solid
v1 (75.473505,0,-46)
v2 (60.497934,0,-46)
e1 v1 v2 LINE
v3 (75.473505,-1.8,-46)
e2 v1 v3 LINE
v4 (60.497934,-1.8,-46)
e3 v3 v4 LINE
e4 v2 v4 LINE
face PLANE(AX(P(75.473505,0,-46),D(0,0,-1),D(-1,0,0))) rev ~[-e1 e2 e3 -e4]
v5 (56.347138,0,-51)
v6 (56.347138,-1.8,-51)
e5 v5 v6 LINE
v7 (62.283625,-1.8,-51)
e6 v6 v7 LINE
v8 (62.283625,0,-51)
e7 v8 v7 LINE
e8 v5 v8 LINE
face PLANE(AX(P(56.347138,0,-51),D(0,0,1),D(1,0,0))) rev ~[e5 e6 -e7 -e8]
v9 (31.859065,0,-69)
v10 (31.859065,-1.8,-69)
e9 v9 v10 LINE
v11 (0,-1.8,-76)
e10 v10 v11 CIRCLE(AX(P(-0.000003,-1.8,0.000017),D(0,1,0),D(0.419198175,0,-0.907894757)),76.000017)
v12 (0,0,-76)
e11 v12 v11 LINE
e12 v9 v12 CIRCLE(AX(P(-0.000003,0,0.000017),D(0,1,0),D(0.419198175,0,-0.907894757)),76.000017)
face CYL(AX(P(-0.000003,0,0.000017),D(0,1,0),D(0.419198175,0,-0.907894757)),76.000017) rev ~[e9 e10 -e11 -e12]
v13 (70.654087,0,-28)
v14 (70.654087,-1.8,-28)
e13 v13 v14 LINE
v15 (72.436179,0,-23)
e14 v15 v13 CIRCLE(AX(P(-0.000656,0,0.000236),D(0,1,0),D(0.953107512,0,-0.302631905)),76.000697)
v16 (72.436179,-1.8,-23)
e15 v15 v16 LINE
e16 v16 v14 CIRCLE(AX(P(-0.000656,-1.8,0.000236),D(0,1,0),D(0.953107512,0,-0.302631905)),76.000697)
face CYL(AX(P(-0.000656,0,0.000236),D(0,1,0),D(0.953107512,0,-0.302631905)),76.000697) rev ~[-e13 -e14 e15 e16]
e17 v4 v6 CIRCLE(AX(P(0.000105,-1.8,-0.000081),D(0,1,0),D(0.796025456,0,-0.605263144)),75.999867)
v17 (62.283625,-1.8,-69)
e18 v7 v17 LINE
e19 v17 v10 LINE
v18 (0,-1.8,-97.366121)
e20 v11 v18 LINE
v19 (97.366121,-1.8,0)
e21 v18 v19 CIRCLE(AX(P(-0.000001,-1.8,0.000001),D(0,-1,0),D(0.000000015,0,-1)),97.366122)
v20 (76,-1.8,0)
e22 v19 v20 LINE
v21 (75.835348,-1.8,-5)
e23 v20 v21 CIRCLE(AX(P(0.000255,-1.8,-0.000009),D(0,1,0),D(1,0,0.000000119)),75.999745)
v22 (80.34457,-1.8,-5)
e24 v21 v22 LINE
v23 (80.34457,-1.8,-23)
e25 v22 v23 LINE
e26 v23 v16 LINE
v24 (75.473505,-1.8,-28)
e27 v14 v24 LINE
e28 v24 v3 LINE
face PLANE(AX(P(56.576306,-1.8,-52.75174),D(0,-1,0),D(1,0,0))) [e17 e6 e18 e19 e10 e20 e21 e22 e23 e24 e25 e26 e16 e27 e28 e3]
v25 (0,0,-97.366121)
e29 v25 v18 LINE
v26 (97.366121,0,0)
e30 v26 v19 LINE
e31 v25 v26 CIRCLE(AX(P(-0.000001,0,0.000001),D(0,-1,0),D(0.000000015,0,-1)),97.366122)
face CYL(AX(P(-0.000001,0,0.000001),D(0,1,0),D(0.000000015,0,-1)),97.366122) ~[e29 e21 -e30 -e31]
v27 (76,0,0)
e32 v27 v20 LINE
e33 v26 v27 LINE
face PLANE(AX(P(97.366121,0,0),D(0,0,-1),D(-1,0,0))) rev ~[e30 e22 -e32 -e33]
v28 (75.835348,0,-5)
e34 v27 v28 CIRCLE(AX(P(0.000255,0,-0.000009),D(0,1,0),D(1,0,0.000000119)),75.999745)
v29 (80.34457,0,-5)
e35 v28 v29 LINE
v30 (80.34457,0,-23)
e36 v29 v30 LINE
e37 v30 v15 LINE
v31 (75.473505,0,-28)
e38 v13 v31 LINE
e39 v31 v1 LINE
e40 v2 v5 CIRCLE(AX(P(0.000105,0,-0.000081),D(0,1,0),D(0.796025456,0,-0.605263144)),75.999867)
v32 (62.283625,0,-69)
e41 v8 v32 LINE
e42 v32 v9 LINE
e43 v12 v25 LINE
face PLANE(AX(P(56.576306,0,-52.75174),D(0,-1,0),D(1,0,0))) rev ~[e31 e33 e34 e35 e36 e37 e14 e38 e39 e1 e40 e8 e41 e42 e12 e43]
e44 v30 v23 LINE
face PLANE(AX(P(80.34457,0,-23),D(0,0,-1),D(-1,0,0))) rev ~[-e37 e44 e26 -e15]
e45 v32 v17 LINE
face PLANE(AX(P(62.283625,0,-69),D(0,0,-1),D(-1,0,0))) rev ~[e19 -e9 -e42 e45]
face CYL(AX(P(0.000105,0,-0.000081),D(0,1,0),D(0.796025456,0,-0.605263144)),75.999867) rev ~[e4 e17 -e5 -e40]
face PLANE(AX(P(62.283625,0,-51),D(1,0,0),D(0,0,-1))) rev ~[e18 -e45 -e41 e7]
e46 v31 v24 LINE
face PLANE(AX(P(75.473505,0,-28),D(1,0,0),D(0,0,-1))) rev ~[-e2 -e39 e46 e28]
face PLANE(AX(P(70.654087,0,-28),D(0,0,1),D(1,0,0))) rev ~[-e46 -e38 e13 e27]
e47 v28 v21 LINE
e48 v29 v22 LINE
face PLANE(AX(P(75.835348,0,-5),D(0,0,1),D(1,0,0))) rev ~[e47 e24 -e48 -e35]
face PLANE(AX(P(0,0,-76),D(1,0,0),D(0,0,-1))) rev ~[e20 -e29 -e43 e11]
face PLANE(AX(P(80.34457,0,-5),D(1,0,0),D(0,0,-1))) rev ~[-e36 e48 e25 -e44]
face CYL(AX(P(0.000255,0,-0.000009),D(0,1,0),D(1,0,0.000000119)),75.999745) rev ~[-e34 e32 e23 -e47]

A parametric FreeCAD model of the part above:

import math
import FreeCAD as App
import Part
import Sketcher
from FreeCAD import Vector

doc = App.newDocument("Part")
body = doc.addObject("PartDesign::Body", "Body")

# Sketch on XZ plane
sketch1 = body.newObject("Sketcher::SketchObject", "Sketch")
sketch1.AttachmentSupport = (doc.getObject("XZ_Plane"), [""])
sketch1.MapMode = "FlatFace"
sketch1.addGeometry(Part.ArcOfCircle(Part.Circle(Vector(-0.000003, 0.000017, 0), Vector(0, 0, 1), 76.000017), math.radians(-89.999997), math.radians(-65.216025)), False)
sketch1.addGeometry(Part.LineSegment(Vector(0, -76, 0), Vector(0, -97.366121, 0)), False)
sketch1.addGeometry(Part.ArcOfCircle(Part.Circle(Vector(-0.000001, 0.000001, 0), Vector(0, 0, 1), 97.366122), math.radians(-89.999999), math.radians(-0.000001)), False)
sketch1.addGeometry(Part.LineSegment(Vector(97.366121, 0, 0), Vector(76, 0, 0)), False)
sketch1.addGeometry(Part.ArcOfCircle(Part.Circle(Vector(0.000255, -0.000009, 0), Vector(0, 0, 1), 75.999745), math.radians(-3.77219), math.radians(0.000007)), False)
sketch1.addGeometry(Part.LineSegment(Vector(75.835348, -5, 0), Vector(80.34457, -5, 0)), False)
sketch1.addGeometry(Part.LineSegment(Vector(80.34457, -5, 0), Vector(80.34457, -23, 0)), False)
sketch1.addGeometry(Part.LineSegment(Vector(80.34457, -23, 0), Vector(72.436179, -23, 0)), False)
sketch1.addGeometry(Part.ArcOfCircle(Part.Circle(Vector(-0.000656, 0.000236, 0), Vector(0, 0, 1), 76.000697), math.radians(-21.618255), math.radians(-17.61575)), False)
sketch1.addGeometry(Part.LineSegment(Vector(70.654087, -28, 0), Vector(75.473505, -28, 0)), False)
sketch1.addGeometry(Part.LineSegment(Vector(75.473505, -28, 0), Vector(75.473505, -46, 0)), False)
sketch1.addGeometry(Part.LineSegment(Vector(75.473505, -46, 0), Vector(60.497934, -46, 0)), False)
sketch1.addGeometry(Part.ArcOfCircle(Part.Circle(Vector(0.000105, -0.000081, 0), Vector(0, 0, 1), 75.999867), math.radians(-42.148367), math.radians(-37.24778)), False)
sketch1.addGeometry(Part.LineSegment(Vector(56.347138, -51, 0), Vector(62.283625, -51, 0)), False)
sketch1.addGeometry(Part.LineSegment(Vector(62.283625, -51, 0), Vector(62.283625, -69, 0)), False)
sketch1.addGeometry(Part.LineSegment(Vector(62.283625, -69, 0), Vector(31.859065, -69, 0)), False)
sketch1.addConstraint(Sketcher.Constraint("Coincident", 0, 1, 1, 1))
sketch1.addConstraint(Sketcher.Constraint("Coincident", 1, 2, 2, 1))
sketch1.addConstraint(Sketcher.Constraint("Coincident", 2, 2, 3, 1))
sketch1.addConstraint(Sketcher.Constraint("Coincident", 3, 2, 4, 2))
sketch1.addConstraint(Sketcher.Constraint("Coincident", 4, 1, 5, 1))
sketch1.addConstraint(Sketcher.Constraint("Coincident", 5, 2, 6, 1))
sketch1.addConstraint(Sketcher.Constraint("Coincident", 6, 2, 7, 1))
sketch1.addConstraint(Sketcher.Constraint("Coincident", 7, 2, 8, 2))
sketch1.addConstraint(Sketcher.Constraint("Coincident", 8, 1, 9, 1))
sketch1.addConstraint(Sketcher.Constraint("Coincident", 9, 2, 10, 1))
sketch1.addConstraint(Sketcher.Constraint("Coincident", 10, 2, 11, 1))
sketch1.addConstraint(Sketcher.Constraint("Coincident", 11, 2, 12, 2))
sketch1.addConstraint(Sketcher.Constraint("Coincident", 12, 1, 13, 1))
sketch1.addConstraint(Sketcher.Constraint("Coincident", 13, 2, 14, 1))
sketch1.addConstraint(Sketcher.Constraint("Coincident", 14, 2, 15, 1))
sketch1.addConstraint(Sketcher.Constraint("Coincident", 15, 2, 0, 2))
sketch1.addConstraint(Sketcher.Constraint("Vertical", 1))
sketch1.addConstraint(Sketcher.Constraint("Horizontal", 3))
sketch1.addConstraint(Sketcher.Constraint("Horizontal", 5))
sketch1.addConstraint(Sketcher.Constraint("Vertical", 6))
sketch1.addConstraint(Sketcher.Constraint("Horizontal", 7))
sketch1.addConstraint(Sketcher.Constraint("Horizontal", 9))
sketch1.addConstraint(Sketcher.Constraint("Vertical", 10))
sketch1.addConstraint(Sketcher.Constraint("Horizontal", 11))
sketch1.addConstraint(Sketcher.Constraint("Horizontal", 13))
sketch1.addConstraint(Sketcher.Constraint("Vertical", 14))
sketch1.addConstraint(Sketcher.Constraint("Horizontal", 15))
sketch1.addConstraint(Sketcher.Constraint("Coincident", 2, 3, -1, 1))
sketch1.addConstraint(Sketcher.Constraint("PointOnObject", 0, 1, -2))
sketch1.addConstraint(Sketcher.Constraint("PointOnObject", 2, 2, -1))
sketch1.addConstraint(Sketcher.Constraint("DistanceY", 6, 2, 6, 1, 18.0))
sketch1.addConstraint(Sketcher.Constraint("DistanceY", 10, 2, 10, 1, 18.0))
sketch1.addConstraint(Sketcher.Constraint("DistanceY", 14, 2, 14, 1, 18.0))
sketch1.addConstraint(Sketcher.Constraint("DistanceY", 0, 1, -1, 1, 76.0))
sketch1.addConstraint(Sketcher.Constraint("DistanceX", -1, 1, 3, 2, 76.0))
sketch1.addConstraint(Sketcher.Constraint("DistanceY", 4, 1, -1, 1, 5.0))
sketch1.addConstraint(Sketcher.Constraint("DistanceY", 8, 1, -1, 1, 28.0))
sketch1.addConstraint(Sketcher.Constraint("DistanceY", 12, 1, -1, 1, 51.0))
sketch1.addConstraint(Sketcher.Constraint("Radius", 0, 76.000017))
sketch1.addConstraint(Sketcher.Constraint("Radius", 2, 97.366122))
sketch1.addConstraint(Sketcher.Constraint("Radius", 4, 75.999745))
sketch1.addConstraint(Sketcher.Constraint("Radius", 8, 76.000697))
sketch1.addConstraint(Sketcher.Constraint("Radius", 12, 75.999867))
sketch1.addConstraint(Sketcher.Constraint("DistanceX", 7, 2, 7, 1, 7.908391))
sketch1.addConstraint(Sketcher.Constraint("DistanceX", 11, 2, 11, 1, 14.975571))
sketch1.addConstraint(Sketcher.Constraint("DistanceX", 15, 2, 15, 1, 30.42456))
sketch1.addConstraint(Sketcher.Constraint("DistanceX", 5, 1, 5, 2, 4.509222))
sketch1.addConstraint(Sketcher.Constraint("DistanceX", 9, 1, 9, 2, 4.819418))
sketch1.addConstraint(Sketcher.Constraint("DistanceX", 13, 1, 13, 2, 5.936487))
sketch1.addConstraint(Sketcher.Constraint("DistanceX", -1, 1, 5, 2, 80.34457))
sketch1.addConstraint(Sketcher.Constraint("DistanceX", 0, 3, 4, 3, 0.000258))
sketch1.addConstraint(Sketcher.Constraint("DistanceY", 0, 3, 8, 3, 0.000219))
pad1 = body.newObject("PartDesign::Pad", "Pad")
pad1.Profile = sketch1
pad1.Length = 1.8

doc.recompute()
